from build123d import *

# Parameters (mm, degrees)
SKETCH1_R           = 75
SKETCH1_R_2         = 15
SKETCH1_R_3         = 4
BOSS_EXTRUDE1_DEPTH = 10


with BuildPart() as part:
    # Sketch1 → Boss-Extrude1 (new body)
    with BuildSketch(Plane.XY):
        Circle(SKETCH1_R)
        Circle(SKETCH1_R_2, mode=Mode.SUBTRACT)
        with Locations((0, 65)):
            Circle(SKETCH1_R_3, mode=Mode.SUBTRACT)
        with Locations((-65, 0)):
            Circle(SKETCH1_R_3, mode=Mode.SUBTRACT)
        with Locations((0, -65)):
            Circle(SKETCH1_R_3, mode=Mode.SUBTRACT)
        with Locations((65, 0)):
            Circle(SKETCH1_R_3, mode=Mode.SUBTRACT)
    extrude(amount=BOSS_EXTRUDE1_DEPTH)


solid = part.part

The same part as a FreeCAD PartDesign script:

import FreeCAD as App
import Part
import Sketcher
Q = App.Units.Quantity

doc = App.newDocument("Part")
params = doc.addObject("Spreadsheet::Sheet", "Params")
for row, (alias, value) in enumerate([
    ("sketch1_diameter", "150 mm"),
    ("sketch1_diameter2", "8 mm"),
    ("sketch1_diameter3", "30 mm"),
    ("pad1_length", "10 mm"),
], start=1):
    params.set(f"A{row}", alias)
    params.set(f"B{row}", "=" + value)
    params.setAlias(f"B{row}", alias)

body = doc.addObject("PartDesign::Body", "Body")

# Sketch on XY plane
sketch1 = body.newObject("Sketcher::SketchObject", "Sketch")
sketch1.AttachmentSupport = (doc.getObject("XY_Plane"), [""])
sketch1.MapMode = "FlatFace"
sketch1.addGeometry([
    Part.Circle(App.Vector(0, 0, 0), App.Vector(0, 0, 1), 75),  # 0
    Part.Circle(App.Vector(0, -65, 0), App.Vector(0, 0, 1), 4),  # 1
    Part.Circle(App.Vector(-65, 0, 0), App.Vector(0, 0, 1), 4),  # 2
    Part.Circle(App.Vector(0, 0, 0), App.Vector(0, 0, 1), 15),  # 3
    Part.Circle(App.Vector(65, 0, 0), App.Vector(0, 0, 1), 4),  # 4
    Part.Circle(App.Vector(0, 65, 0), App.Vector(0, 0, 1), 4),  # 5
], False)
sketch1.addConstraint([
    Sketcher.Constraint("Coincident", 0, 3, -1, 1),
    Sketcher.Constraint("Coincident", 3, 3, -1, 1),
    Sketcher.Constraint("Equal", 1, 2),
    Sketcher.Constraint("Equal", 2, 4),
    Sketcher.Constraint("Equal", 4, 5),
    Sketcher.Constraint("Symmetric", 2, 3, 4, 3, -1, 1),
    Sketcher.Constraint("Symmetric", 1, 3, 5, 3, -1, 1),
    Sketcher.Constraint("PointOnObject", 1, 3, -2),
    Sketcher.Constraint("PointOnObject", 2, 3, -1),
    Sketcher.Constraint("Diameter", 0, Q("150 mm")),
    Sketcher.Constraint("Diameter", 1, Q("8 mm")),
    Sketcher.Constraint("Diameter", 3, Q("30 mm")),
    Sketcher.Constraint("DistanceY", 1, 3, -1, 1, Q("65 mm")),
    Sketcher.Constraint("DistanceX", 2, 3, -1, 1, Q("65 mm")),
])
sketch1.setExpression("Constraints[9]", "Params.sketch1_diameter")
sketch1.setExpression("Constraints[10]", "Params.sketch1_diameter2")
sketch1.setExpression("Constraints[11]", "Params.sketch1_diameter3")
pad1 = body.newObject("PartDesign::Pad", "Pad")
pad1.Profile = sketch1
pad1.setExpression("Length", "Params.pad1_length")

doc.recompute()
